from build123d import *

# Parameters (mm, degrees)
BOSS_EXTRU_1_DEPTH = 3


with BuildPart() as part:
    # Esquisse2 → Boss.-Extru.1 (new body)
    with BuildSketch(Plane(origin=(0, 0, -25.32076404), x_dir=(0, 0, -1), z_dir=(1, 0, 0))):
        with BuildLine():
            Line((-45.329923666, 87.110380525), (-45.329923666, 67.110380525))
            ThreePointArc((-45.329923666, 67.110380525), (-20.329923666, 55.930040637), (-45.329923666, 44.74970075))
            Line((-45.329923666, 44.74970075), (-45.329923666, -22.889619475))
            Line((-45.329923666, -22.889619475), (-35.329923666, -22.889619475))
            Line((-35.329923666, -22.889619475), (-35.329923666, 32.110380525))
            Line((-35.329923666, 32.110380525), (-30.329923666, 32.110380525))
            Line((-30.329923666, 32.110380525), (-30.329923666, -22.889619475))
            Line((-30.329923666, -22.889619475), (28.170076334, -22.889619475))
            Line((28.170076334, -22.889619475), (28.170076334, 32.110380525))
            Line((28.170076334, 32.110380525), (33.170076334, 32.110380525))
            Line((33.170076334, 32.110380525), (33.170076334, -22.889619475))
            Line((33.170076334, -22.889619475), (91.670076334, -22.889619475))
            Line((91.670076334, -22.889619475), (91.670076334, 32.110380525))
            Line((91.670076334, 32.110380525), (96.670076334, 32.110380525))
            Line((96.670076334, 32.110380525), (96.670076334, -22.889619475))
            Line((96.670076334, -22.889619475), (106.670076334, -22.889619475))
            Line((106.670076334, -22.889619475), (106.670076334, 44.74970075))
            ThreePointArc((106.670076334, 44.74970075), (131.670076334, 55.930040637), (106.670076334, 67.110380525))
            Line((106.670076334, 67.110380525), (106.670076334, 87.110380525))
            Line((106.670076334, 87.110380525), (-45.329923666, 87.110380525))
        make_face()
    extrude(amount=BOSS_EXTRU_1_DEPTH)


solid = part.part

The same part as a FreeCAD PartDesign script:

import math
import FreeCAD as App
import Part
import Sketcher

V = App.Vector

doc = App.newDocument("Part")
body = doc.addObject("PartDesign::Body", "Body")

# Sketch on YZ plane
sketch1 = body.newObject("Sketcher::SketchObject", "Sketch")
sketch1.AttachmentSupport = (doc.getObject("YZ_Plane"), [""])
sketch1.MapMode = "FlatFace"
sketch1.addGeometry([
    Part.LineSegment(V(87, 20, 0), V(67, 20, 0)),  # 0
    Part.ArcOfCircle(Part.Circle(V(56, 10, 0), V(0, 0, 1), 15), math.radians(138), math.radians(402)),  # 1
    Part.LineSegment(V(45, 20, 0), V(-23, 20, 0)),  # 2
    Part.LineSegment(V(-23, 20, 0), V(-23, 10, 0)),  # 3
    Part.LineSegment(V(-23, 10, 0), V(32, 10, 0)),  # 4
    Part.LineSegment(V(32, 10, 0), V(32, 5, 0)),  # 5
    Part.LineSegment(V(32, 5, 0), V(-23, 5, 0)),  # 6
    Part.LineSegment(V(-23, 5, 0), V(-23, -53, 0)),  # 7
    Part.LineSegment(V(-23, -53, 0), V(32, -53, 0)),  # 8
    Part.LineSegment(V(32, -53, 0), V(32, -58, 0)),  # 9
    Part.LineSegment(V(32, -58, 0), V(-23, -58, 0)),  # 10
    Part.LineSegment(V(-23, -58, 0), V(-23, -117, 0)),  # 11
    Part.LineSegment(V(-23, -117, 0), V(32, -117, 0)),  # 12
    Part.LineSegment(V(32, -117, 0), V(32, -122, 0)),  # 13
    Part.LineSegment(V(32, -122, 0), V(-23, -122, 0)),  # 14
    Part.LineSegment(V(-23, -122, 0), V(-23, -132, 0)),  # 15
    Part.LineSegment(V(-23, -132, 0), V(45, -132, 0)),  # 16
    Part.ArcOfCircle(Part.Circle(V(56, -142, 0), V(0, 0, 1), 15), math.radians(138), math.radians(402)),  # 17
    Part.LineSegment(V(67, -132, 0), V(87, -132, 0)),  # 18
    Part.LineSegment(V(87, -132, 0), V(87, 20, 0)),  # 19
], False)
sketch1.addConstraint([
    Sketcher.Constraint("Coincident", 0, 2, 1, 2),
    Sketcher.Constraint("Coincident", 1, 1, 2, 1),
    Sketcher.Constraint("Coincident", 2, 2, 3, 1),
    Sketcher.Constraint("Coincident", 3, 2, 4, 1),
    Sketcher.Constraint("Coincident", 4, 2, 5, 1),
    Sketcher.Constraint("Coincident", 5, 2, 6, 1),
    Sketcher.Constraint("Coincident", 6, 2, 7, 1),
    Sketcher.Constraint("Coincident", 7, 2, 8, 1),
    Sketcher.Constraint("Coincident", 8, 2, 9, 1),
    Sketcher.Constraint("Coincident", 9, 2, 10, 1),
    Sketcher.Constraint("Coincident", 10, 2, 11, 1),
    Sketcher.Constraint("Coincident", 11, 2, 12, 1),
    Sketcher.Constraint("Coincident", 12, 2, 13, 1),
    Sketcher.Constraint("Coincident", 13, 2, 14, 1),
    Sketcher.Constraint("Coincident", 14, 2, 15, 1),
    Sketcher.Constraint("Coincident", 15, 2, 16, 1),
    Sketcher.Constraint("Coincident", 16, 2, 17, 1),
    Sketcher.Constraint("Coincident", 17, 2, 18, 1),
    Sketcher.Constraint("Coincident", 18, 2, 19, 1),
    Sketcher.Constraint("Coincident", 19, 2, 0, 1),
    Sketcher.Constraint("Horizontal", 0),
    Sketcher.Constraint("Horizontal", 2),
    Sketcher.Constraint("Vertical", 3),
    Sketcher.Constraint("Horizontal", 4),
    Sketcher.Constraint("Vertical", 5),
    Sketcher.Constraint("Horizontal", 6),
    Sketcher.Constraint("Vertical", 7),
    Sketcher.Constraint("Horizontal", 8),
    Sketcher.Constraint("Vertical", 9),
    Sketcher.Constraint("Horizontal", 10),
    Sketcher.Constraint("Vertical", 11),
    Sketcher.Constraint("Horizontal", 12),
    Sketcher.Constraint("Vertical", 13),
    Sketcher.Constraint("Horizontal", 14),
    Sketcher.Constraint("Vertical", 15),
    Sketcher.Constraint("Horizontal", 16),
    Sketcher.Constraint("Horizontal", 18),
    Sketcher.Constraint("Vertical", 19),
    Sketcher.Constraint("Equal", 1, 17),
    Sketcher.Constraint("Horizontal", 0, 2, 1, 1),
    Sketcher.Constraint("Horizontal", 1, 3, 3, 2),
    Sketcher.Constraint("Horizontal", 16, 2, 17, 2),
    Sketcher.Constraint("Vertical", 1, 3, 17, 3),
    Sketcher.Constraint("Vertical", 3, 2, 6, 2),
    Sketcher.Constraint("Vertical", 5, 2, 8, 2),
    Sketcher.Constraint("Vertical", 7, 2, 10, 2),
    Sketcher.Constraint("Vertical", 9, 2, 12, 2),
    Sketcher.Constraint("Vertical", 11, 2, 14, 2),
    Sketcher.Constraint("Vertical", 1, 1, 16, 2),
    Sketcher.Constraint("Equal", 5, 9),
    Sketcher.Constraint("Equal", 7, 11),
    Sketcher.Constraint("Equal", 9, 13),
    Sketcher.Constraint("Equal", 3, 15),
    Sketcher.Constraint("Radius", 1, 15.0),
    Sketcher.Constraint("DistanceX", 0, 2, 0, 1, 20.0),
    Sketcher.Constraint("DistanceX", 4, 1, 4, 2, 55.0),
    Sketcher.Constraint("DistanceY", 3, 2, 3, 1, 10.0),
    Sketcher.Constraint("DistanceY", 5, 2, 5, 1, 5.0),
    Sketcher.Constraint("DistanceY", 19, 1, 19, 2, 152.0),
    Sketcher.Constraint("DistanceX", 2, 2, 0, 2, 90.0),
    Sketcher.Constraint("DistanceX", -1, 1, 1, 1, 44.749701),
    Sketcher.Constraint("DistanceY", -1, 1, 1, 3, 10.00916),
])
pad1 = body.newObject("PartDesign::Pad", "Pad")
pad1.Profile = sketch1
pad1.Length = 3

doc.recompute()
